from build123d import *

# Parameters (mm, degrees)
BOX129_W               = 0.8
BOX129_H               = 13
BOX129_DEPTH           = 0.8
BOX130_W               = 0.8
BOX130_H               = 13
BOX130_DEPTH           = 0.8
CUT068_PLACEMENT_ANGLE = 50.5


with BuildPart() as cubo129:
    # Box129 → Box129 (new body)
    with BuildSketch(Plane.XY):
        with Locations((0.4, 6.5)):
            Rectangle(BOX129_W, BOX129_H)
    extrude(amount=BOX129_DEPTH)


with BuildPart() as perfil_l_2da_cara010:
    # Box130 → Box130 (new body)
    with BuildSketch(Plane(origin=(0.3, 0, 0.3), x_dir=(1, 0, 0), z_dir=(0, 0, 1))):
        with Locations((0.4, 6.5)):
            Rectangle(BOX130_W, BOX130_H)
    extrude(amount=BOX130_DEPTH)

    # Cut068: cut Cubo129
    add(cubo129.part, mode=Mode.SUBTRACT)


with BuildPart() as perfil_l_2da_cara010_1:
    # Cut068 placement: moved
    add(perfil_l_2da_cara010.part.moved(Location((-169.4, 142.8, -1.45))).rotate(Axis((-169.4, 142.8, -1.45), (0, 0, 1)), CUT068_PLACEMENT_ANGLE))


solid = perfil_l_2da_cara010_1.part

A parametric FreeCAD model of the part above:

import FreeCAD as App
import Part
import Sketcher
from FreeCAD import Vector

doc = App.newDocument("Part")
body = doc.addObject("PartDesign::Body", "Body")

sketch1 = body.newObject("Sketcher::SketchObject", "Sketch")
sketch1.AttachmentSupport = (doc.getObject("XY_Plane"), [""])
sketch1.MapMode = "FlatFace"
sketch1.addGeometry([
    Part.LineSegment(Vector(0, 13, 0), Vector(0, 0, 0)),
    Part.LineSegment(Vector(0, 0, 0), Vector(0.8, 0, 0)),
    Part.LineSegment(Vector(0.8, 0, 0), Vector(0.8, 13, 0)),
    Part.LineSegment(Vector(0.8, 13, 0), Vector(0, 13, 0)),
], False)
sketch1.addConstraint([
    Sketcher.Constraint("Coincident", 0, 2, 1, 1),
    Sketcher.Constraint("Coincident", 1, 2, 2, 1),
    Sketcher.Constraint("Coincident", 2, 2, 3, 1),
    Sketcher.Constraint("Coincident", 3, 2, 0, 1),
    Sketcher.Constraint("Vertical", 0),
    Sketcher.Constraint("Horizontal", 1),
    Sketcher.Constraint("Vertical", 2),
    Sketcher.Constraint("Horizontal", 3),
    Sketcher.Constraint("Coincident", 0, 2, -1, 1),
    Sketcher.Constraint("DistanceY", 0, 2, 0, 1, 13.0),
    Sketcher.Constraint("DistanceX", 1, 1, 1, 2, 0.8),
])
pad1 = body.newObject("PartDesign::Pad", "Pad")
pad1.Profile = sketch1
pad1.Length = 0.8
body2 = doc.addObject("PartDesign::Body", "Body001")

sketch2 = body2.newObject("Sketcher::SketchObject", "Sketch001")
sketch2.AttachmentSupport = (doc.getObject("XY_Plane001"), [""])
sketch2.MapMode = "FlatFace"
sketch2.AttachmentOffset = App.Placement(Vector(0, 0, 0.3), App.Rotation())
sketch2.addGeometry([
    Part.LineSegment(Vector(0.3, 13, 0), Vector(0.3, 0, 0)),
    Part.LineSegment(Vector(0.3, 0, 0), Vector(1.1, 0, 0)),
    Part.LineSegment(Vector(1.1, 0, 0), Vector(1.1, 13, 0)),
    Part.LineSegment(Vector(1.1, 13, 0), Vector(0.3, 13, 0)),
], False)
sketch2.addConstraint([
    Sketcher.Constraint("Coincident", 0, 2, 1, 1),
    Sketcher.Constraint("Coincident", 1, 2, 2, 1),
    Sketcher.Constraint("Coincident", 2, 2, 3, 1),
    Sketcher.Constraint("Coincident", 3, 2, 0, 1),
    Sketcher.Constraint("Vertical", 0),
    Sketcher.Constraint("Horizontal", 1),
    Sketcher.Constraint("Vertical", 2),
    Sketcher.Constraint("Horizontal", 3),
    Sketcher.Constraint("PointOnObject", 0, 2, -1),
    Sketcher.Constraint("DistanceY", 0, 2, 0, 1, 13.0),
    Sketcher.Constraint("DistanceX", 1, 1, 1, 2, 0.8),
    Sketcher.Constraint("DistanceX", -1, 1, 0, 2, 0.3),
])
pad2 = body2.newObject("PartDesign::Pad", "Pad001")
pad2.Profile = sketch2
pad2.Length = 0.8
doc.recompute()

boolean = body2.newObject("PartDesign::Boolean", "Boolean")
boolean.Type = "Cut"
boolean.addObjects([body])
body3 = doc.addObject("PartDesign::Body", "Body002")
doc.recompute()

body2.Placement = App.Placement(Vector(-169.4, 142.8, -1.45), App.Rotation(Vector(0, 0, 1), 50.5))
boolean2 = body3.newObject("PartDesign::Boolean", "Boolean001")
boolean2.Type = "Fuse"
boolean2.addObjects([body2])

doc.recompute()
